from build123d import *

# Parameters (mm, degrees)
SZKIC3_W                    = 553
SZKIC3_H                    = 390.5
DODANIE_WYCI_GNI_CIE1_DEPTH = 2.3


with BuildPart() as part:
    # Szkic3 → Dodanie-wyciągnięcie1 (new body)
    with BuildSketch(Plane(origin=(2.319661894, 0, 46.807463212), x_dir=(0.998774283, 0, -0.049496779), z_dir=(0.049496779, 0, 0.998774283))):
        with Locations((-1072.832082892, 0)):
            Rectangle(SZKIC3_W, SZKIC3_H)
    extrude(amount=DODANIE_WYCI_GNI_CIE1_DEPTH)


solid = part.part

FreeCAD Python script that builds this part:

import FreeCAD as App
import Part
import Sketcher
from FreeCAD import Vector
Q = App.Units.Quantity


def add_polygon(sketch, points):
    """Adds a closed chain of lines whose ends are joined by coincident constraints."""
    first, n = sketch.GeometryCount, len(points)
    for a, b in zip(points, points[1:] + points[:1]):
        sketch.addGeometry(Part.LineSegment(App.Vector(*a, 0), App.Vector(*b, 0)), False)
    for i in range(n):
        sketch.addConstraint(Sketcher.Constraint("Coincident", first + i, 2, first + (i + 1) % n, 1))

doc = App.newDocument("Part")
body = doc.addObject("PartDesign::Body", "Body")

sketch1 = body.newObject("Sketcher::SketchObject", "Sketch")
sketch1.Placement = App.Placement(Vector(2.319662, 0, 46.807463), App.Rotation(Vector(0.998774283, 0, -0.049496779), Vector(0, 1, 0), Vector(0.049496779, 0, 0.998774283), "ZXY"))
add_polygon(sketch1, [(-1349, 195), (-1349, -195), (-796, -195), (-796, 195)])
sketch1.addConstraint(Sketcher.Constraint("Vertical", 0))
sketch1.addConstraint(Sketcher.Constraint("Horizontal", 1))
sketch1.addConstraint(Sketcher.Constraint("Vertical", 2))
sketch1.addConstraint(Sketcher.Constraint("Horizontal", 3))
sketch1.addConstraint(Sketcher.Constraint("DistanceX", 1, 1, 1, 2, Q("553 mm")))
sketch1.addConstraint(Sketcher.Constraint("DistanceY", 0, 2, 0, 1, Q("390.5 mm")))
sketch1.addConstraint(Sketcher.Constraint("DistanceY", 0, 2, -1, 1, Q("195.25 mm")))
sketch1.addConstraint(Sketcher.Constraint("DistanceX", 0, 2, -1, 1, Q("1349.332082 mm")))
pad1 = body.newObject("PartDesign::Pad", "Pad")
pad1.Profile = sketch1
pad1.Length = 2.3

doc.recompute()
